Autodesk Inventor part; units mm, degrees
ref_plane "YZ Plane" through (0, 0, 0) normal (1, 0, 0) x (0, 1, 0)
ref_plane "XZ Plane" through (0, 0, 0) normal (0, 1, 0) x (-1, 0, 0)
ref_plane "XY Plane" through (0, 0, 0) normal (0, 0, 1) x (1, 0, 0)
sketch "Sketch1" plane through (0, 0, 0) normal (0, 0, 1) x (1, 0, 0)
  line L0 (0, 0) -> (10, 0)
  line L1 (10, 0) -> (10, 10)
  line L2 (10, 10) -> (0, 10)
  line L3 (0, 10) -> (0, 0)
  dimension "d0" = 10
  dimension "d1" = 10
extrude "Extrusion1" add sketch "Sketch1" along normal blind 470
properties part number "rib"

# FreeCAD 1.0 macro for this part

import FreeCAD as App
import Part
import Sketcher

V = App.Vector
Q = App.Units.Quantity


def add_polygon(sketch, points):
    """Adds a closed chain of lines whose ends are joined by coincident constraints."""
    first, n = sketch.GeometryCount, len(points)
    for a, b in zip(points, points[1:] + points[:1]):
        sketch.addGeometry(Part.LineSegment(App.Vector(*a, 0), App.Vector(*b, 0)), False)
    for i in range(n):
        sketch.addConstraint(Sketcher.Constraint("Coincident", first + i, 2, first + (i + 1) % n, 1))

doc = App.newDocument("Part")
body = doc.addObject("PartDesign::Body", "Body")

# Sketch on XY plane
sketch1 = body.newObject("Sketcher::SketchObject", "Sketch")
sketch1.AttachmentSupport = (doc.getObject("XY_Plane"), [""])
sketch1.MapMode = "FlatFace"
add_polygon(sketch1, [(0, 10), (0, 0), (10, 0), (10, 10)])  # lines 0-3
sketch1.addConstraint(Sketcher.Constraint("Vertical", 0))
sketch1.addConstraint(Sketcher.Constraint("Horizontal", 1))
sketch1.addConstraint(Sketcher.Constraint("Vertical", 2))
sketch1.addConstraint(Sketcher.Constraint("Horizontal", 3))
sketch1.addConstraint(Sketcher.Constraint("Coincident", 0, 2, -1, 1))
sketch1.addConstraint(Sketcher.Constraint("Equal", 3, 0))
sketch1.addConstraint(Sketcher.Constraint("DistanceX", 1, 1, 1, 2, Q("10 mm")))
pad1 = body.newObject("PartDesign::Pad", "Pad")
pad1.Profile = sketch1
pad1.Length = 470

doc.recompute()
